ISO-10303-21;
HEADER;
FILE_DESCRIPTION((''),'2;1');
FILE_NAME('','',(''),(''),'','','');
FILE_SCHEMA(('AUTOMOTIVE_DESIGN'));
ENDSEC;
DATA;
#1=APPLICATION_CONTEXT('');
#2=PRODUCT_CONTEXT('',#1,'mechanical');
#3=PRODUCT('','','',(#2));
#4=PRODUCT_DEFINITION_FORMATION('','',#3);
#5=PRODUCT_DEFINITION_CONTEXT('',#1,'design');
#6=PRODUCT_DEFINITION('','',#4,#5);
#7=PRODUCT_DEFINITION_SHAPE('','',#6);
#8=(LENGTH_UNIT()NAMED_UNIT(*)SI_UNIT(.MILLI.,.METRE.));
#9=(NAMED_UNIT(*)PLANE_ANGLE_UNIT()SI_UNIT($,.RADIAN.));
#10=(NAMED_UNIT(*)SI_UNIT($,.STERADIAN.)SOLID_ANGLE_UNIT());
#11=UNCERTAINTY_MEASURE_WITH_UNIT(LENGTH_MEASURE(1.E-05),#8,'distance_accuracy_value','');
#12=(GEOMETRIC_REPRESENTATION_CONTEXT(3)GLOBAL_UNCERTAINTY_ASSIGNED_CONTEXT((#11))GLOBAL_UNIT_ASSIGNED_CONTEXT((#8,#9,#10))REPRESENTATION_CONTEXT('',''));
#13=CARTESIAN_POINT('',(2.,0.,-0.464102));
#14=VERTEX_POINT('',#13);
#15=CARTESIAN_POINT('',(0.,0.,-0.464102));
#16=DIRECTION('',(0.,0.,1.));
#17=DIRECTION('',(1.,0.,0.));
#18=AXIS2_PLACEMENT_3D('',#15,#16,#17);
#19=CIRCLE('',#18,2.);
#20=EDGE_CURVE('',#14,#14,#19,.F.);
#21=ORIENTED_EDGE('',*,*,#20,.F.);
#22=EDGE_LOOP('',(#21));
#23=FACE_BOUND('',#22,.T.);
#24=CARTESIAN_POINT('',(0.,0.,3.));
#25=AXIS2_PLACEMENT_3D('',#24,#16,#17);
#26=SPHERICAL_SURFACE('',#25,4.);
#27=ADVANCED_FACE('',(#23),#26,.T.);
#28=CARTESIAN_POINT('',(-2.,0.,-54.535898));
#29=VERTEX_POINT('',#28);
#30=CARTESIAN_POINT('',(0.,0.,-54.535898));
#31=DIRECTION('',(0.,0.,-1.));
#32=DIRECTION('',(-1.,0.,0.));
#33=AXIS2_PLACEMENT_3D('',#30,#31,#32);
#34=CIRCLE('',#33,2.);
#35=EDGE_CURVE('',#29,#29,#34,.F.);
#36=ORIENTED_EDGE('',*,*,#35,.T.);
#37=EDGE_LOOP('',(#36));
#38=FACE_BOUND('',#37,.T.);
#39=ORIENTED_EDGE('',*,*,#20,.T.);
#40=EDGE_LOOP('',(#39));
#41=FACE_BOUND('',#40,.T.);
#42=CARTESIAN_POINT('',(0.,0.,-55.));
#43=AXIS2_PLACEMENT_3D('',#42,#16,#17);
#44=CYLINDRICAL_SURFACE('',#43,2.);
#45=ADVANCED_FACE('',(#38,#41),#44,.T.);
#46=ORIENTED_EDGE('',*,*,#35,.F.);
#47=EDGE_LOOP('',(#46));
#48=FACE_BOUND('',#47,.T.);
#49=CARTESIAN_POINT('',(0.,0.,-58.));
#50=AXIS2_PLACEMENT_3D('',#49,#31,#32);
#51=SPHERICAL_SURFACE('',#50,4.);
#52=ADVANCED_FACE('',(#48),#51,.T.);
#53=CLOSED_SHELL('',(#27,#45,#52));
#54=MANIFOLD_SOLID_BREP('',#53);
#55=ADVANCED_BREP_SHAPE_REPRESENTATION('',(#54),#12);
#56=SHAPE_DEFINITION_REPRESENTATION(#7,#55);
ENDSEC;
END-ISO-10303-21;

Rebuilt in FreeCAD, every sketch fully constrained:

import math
import FreeCAD as App
import Part
import Sketcher
from FreeCAD import Vector

doc = App.newDocument("Part")
body = doc.addObject("PartDesign::Body", "Body")

# Sketch on XY plane
sketch1 = body.newObject("Sketcher::SketchObject", "Sketch")
sketch1.AttachmentSupport = (doc.getObject("XY_Plane"), [""])
sketch1.MapMode = "FlatFace"
sketch1.addGeometry(Part.Circle(Vector(0, 0, 0), Vector(0, 0, 1), 2), False)
sketch1.addConstraint(Sketcher.Constraint("Coincident", 0, 3, -1, 1))
sketch1.addConstraint(Sketcher.Constraint("Diameter", 0, 4.0))
pad1 = body.newObject("PartDesign::Pad", "Pad")
pad1.Profile = sketch1
pad1.Length = 55
pad1.Reversed = True

# Sketch on XY plane
sketch2 = body.newObject("Sketcher::SketchObject", "Sketch001")
sketch2.AttachmentSupport = (doc.getObject("XY_Plane"), [""])
sketch2.MapMode = "FlatFace"
sketch2.AttachmentOffset = App.Placement(Vector(0, 0, 3), App.Rotation())
sketch2.addGeometry(Part.LineSegment(Vector(0, 4, 0), Vector(0, -4, 0)), False)
sketch2.addGeometry(Part.ArcOfCircle(Part.Circle(Vector(0, 0, 0), Vector(0, 0, 1), 4), math.radians(-90), math.radians(90)), False)
sketch2.addConstraint(Sketcher.Constraint("Coincident", 0, 1, 1, 2))
sketch2.addConstraint(Sketcher.Constraint("Coincident", 1, 1, 0, 2))
sketch2.addConstraint(Sketcher.Constraint("Vertical", 0))
sketch2.addConstraint(Sketcher.Constraint("Coincident", 1, 3, -1, 1))
sketch2.addConstraint(Sketcher.Constraint("PointOnObject", 0, 1, -2))
sketch2.addConstraint(Sketcher.Constraint("Radius", 1, 4.0))
revolution = body.newObject("PartDesign::Revolution", "Revolution")
revolution.Profile = sketch2
revolution.ReferenceAxis = (sketch2, ["V_Axis"])
revolution.Angle = 360
doc.recompute()

datumplane = body.newObject("PartDesign::Plane", "DatumPlane")
datumplane.AttachmentSupport = (doc.getObject("XY_Plane"), [""])
datumplane.MapMode = "FlatFace"
datumplane.AttachmentOffset = App.Placement(Vector(0, 0, -27.5), App.Rotation())
mirrored = body.newObject("PartDesign::Mirrored", "Mirrored")
mirrored.Originals = [revolution]
mirrored.MirrorPlane = (datumplane, [""])
body.Tip = mirrored

doc.recompute()
